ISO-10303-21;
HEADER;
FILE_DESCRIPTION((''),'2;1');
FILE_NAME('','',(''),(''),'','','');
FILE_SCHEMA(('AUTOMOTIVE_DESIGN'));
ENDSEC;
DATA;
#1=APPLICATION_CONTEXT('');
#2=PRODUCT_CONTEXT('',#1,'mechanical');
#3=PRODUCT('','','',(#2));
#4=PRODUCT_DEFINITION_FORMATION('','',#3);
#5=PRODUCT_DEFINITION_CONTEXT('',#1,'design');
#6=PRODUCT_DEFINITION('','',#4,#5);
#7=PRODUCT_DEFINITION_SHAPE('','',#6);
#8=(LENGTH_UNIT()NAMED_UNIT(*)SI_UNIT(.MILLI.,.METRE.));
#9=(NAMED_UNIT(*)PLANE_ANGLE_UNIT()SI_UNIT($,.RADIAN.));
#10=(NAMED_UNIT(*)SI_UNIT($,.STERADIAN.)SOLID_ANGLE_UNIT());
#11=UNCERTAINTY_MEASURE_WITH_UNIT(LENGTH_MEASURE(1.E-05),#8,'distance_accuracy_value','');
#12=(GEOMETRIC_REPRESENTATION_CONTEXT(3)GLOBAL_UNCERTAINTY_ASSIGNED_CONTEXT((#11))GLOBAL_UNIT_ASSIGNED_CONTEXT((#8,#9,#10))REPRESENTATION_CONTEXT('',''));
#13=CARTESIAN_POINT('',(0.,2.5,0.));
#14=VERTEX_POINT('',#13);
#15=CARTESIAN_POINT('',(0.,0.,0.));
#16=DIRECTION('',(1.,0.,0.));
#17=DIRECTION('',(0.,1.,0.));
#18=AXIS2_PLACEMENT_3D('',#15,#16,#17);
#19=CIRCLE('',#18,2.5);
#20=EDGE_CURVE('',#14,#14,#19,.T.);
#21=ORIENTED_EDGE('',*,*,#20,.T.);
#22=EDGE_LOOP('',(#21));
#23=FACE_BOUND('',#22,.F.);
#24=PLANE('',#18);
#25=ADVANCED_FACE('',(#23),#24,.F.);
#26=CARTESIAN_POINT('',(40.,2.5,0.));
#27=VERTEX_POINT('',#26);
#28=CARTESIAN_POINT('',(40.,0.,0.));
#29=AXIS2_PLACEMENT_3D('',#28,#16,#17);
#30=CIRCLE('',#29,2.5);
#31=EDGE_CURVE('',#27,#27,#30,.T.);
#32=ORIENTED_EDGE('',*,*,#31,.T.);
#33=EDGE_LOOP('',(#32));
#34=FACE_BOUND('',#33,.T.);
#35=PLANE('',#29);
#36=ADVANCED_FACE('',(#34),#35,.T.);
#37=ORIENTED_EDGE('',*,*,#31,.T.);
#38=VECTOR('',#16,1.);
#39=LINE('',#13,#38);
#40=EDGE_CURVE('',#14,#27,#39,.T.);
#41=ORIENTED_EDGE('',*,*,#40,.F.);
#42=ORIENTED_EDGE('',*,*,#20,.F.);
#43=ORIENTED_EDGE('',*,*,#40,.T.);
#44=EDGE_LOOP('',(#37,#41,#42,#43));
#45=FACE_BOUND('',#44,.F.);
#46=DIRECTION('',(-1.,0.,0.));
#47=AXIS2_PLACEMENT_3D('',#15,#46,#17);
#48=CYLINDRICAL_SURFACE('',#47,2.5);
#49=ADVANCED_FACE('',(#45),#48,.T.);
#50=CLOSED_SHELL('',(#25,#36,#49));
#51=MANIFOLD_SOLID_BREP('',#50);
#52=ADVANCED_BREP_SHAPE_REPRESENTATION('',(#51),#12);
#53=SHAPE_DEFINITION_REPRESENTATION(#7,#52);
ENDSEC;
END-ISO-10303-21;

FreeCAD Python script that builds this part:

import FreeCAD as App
import Part
import Sketcher
from FreeCAD import Vector
Q = App.Units.Quantity

doc = App.newDocument("Part")
body = doc.addObject("PartDesign::Body", "Body")

# Sketch on YZ plane
sketch1 = body.newObject("Sketcher::SketchObject", "Sketch")
sketch1.AttachmentSupport = (doc.getObject("YZ_Plane"), [""])
sketch1.MapMode = "FlatFace"
sketch1.addGeometry(Part.Circle(Vector(0, 0, 0), Vector(0, 0, 1), 2.5), False)
sketch1.addConstraint([
    Sketcher.Constraint("Coincident", 0, 3, -1, 1),
    Sketcher.Constraint("Diameter", 0, Q("5 mm")),
])
pad1 = body.newObject("PartDesign::Pad", "Pad")
pad1.Profile = sketch1
pad1.Length = 40

doc.recompute()
